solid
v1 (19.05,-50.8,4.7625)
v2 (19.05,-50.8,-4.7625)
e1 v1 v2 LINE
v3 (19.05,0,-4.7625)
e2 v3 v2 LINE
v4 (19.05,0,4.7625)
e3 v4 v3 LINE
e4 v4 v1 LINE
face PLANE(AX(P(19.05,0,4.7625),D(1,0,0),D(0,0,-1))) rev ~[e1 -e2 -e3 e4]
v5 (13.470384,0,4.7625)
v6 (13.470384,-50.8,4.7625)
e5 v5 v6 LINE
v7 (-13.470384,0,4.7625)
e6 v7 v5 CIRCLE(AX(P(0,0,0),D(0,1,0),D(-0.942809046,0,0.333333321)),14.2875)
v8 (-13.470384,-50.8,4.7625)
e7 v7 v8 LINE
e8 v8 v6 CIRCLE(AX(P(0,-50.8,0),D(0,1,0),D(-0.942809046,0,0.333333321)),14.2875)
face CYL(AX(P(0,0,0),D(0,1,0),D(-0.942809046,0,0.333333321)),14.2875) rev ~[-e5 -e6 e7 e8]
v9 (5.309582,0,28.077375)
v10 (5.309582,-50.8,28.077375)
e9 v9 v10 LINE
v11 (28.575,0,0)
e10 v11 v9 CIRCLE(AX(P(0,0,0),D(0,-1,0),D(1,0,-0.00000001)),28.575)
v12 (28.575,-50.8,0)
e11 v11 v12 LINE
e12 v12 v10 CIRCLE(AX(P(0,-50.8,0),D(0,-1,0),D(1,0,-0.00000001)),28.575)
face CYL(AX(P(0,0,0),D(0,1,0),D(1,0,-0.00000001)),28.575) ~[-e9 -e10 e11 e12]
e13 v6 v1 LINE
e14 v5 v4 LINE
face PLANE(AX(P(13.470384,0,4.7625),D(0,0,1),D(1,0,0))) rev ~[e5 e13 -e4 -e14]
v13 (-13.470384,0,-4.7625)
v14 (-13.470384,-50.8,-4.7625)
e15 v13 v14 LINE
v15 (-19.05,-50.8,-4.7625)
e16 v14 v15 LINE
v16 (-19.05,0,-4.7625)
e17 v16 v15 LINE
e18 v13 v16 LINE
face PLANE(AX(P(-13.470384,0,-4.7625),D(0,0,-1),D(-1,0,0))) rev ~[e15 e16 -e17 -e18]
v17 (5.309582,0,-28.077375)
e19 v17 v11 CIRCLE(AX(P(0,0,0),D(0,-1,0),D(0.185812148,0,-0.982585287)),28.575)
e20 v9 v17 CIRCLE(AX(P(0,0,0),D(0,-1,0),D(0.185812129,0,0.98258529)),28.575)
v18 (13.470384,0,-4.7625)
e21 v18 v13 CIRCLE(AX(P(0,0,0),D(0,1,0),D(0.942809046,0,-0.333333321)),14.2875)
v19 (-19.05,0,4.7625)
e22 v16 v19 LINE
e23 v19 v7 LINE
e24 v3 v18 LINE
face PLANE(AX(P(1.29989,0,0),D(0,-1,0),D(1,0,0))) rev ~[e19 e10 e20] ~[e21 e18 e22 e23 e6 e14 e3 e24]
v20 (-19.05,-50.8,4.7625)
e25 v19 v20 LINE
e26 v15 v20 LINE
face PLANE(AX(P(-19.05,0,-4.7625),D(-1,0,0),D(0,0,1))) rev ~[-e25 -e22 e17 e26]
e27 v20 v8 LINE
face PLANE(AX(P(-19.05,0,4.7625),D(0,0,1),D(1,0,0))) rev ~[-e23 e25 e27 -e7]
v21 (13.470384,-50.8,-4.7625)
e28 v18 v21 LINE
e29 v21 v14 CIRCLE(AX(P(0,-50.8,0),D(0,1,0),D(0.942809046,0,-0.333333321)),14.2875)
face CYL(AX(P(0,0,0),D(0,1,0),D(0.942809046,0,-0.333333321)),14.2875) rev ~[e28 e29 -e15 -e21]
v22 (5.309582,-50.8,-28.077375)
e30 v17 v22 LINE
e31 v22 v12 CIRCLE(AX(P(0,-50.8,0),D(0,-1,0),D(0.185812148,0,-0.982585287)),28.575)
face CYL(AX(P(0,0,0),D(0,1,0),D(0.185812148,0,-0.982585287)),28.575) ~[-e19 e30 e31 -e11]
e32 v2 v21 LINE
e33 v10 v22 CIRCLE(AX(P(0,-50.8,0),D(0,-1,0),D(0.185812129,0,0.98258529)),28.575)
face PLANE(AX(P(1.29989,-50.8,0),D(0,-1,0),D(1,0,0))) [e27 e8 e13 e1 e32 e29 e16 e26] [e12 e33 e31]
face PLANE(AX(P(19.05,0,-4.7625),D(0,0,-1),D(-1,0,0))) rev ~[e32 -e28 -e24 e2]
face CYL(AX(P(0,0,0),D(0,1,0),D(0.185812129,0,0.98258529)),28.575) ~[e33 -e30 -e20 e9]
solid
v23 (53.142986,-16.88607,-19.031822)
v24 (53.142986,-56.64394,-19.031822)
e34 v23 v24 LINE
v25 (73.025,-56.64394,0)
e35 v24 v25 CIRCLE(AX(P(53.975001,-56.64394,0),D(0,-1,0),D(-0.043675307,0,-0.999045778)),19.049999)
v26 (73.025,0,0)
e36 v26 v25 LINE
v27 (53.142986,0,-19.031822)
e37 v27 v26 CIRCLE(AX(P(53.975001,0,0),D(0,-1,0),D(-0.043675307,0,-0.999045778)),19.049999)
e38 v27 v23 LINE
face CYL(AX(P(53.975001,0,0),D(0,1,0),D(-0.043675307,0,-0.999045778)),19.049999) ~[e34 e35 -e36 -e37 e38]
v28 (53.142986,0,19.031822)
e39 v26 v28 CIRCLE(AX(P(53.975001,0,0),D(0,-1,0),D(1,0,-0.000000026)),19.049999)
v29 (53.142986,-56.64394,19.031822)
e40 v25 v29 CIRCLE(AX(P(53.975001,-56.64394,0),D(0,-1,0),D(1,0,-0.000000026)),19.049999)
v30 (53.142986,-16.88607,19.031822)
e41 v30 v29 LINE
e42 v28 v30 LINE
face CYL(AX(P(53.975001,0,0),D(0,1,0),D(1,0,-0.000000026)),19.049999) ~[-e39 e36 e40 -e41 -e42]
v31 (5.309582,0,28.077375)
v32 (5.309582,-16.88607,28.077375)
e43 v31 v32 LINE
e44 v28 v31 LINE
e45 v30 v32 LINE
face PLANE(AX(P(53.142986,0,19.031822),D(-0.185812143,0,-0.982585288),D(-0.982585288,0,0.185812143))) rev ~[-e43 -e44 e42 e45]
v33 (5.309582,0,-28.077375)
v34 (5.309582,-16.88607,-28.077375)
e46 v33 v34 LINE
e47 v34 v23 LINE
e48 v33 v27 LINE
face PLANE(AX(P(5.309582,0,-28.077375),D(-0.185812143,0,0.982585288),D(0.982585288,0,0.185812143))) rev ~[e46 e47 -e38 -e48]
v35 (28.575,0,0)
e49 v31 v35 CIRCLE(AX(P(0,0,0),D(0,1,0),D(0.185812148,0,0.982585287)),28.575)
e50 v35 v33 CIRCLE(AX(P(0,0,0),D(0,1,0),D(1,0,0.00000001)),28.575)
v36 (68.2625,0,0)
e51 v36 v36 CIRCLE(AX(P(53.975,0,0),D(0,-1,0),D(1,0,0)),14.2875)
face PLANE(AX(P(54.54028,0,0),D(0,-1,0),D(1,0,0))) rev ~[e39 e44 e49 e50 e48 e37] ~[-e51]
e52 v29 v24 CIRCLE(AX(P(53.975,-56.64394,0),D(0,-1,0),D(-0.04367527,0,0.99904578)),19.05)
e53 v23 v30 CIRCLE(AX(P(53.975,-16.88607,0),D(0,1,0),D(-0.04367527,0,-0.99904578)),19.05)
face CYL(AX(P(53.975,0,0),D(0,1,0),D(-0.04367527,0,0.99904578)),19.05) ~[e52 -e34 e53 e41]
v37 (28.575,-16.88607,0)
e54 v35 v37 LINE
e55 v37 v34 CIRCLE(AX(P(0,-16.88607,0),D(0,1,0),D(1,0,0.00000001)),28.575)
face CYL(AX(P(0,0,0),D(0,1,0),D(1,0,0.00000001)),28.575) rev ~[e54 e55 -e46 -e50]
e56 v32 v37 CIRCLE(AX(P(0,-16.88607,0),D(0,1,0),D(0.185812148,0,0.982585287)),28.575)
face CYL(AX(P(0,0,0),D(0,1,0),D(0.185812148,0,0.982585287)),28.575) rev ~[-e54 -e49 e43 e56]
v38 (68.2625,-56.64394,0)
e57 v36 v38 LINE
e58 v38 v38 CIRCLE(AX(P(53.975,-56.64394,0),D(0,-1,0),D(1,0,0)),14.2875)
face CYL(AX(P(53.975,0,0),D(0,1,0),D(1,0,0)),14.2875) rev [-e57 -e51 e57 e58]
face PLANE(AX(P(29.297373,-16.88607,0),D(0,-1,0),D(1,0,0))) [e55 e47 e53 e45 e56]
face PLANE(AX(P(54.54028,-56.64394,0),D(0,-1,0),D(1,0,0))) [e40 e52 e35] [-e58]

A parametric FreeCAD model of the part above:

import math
import FreeCAD as App
import Part
import Sketcher
Q = App.Units.Quantity

doc = App.newDocument("Part")
params = doc.addObject("Spreadsheet::Sheet", "Params")
for row, (alias, value) in enumerate([
    ("sketch1_radius", "1.125 in"),
    ("sketch1_radius2", "0.5625 in"),
    ("sketch1_height", "0.375 in"),
    ("pad1_length", "2 in"),
    ("sketch2_radius", "0.75 in"),
    ("sketch2_radius2", "1.125 in"),
    ("pad2_length", "16.88607 mm"),
    ("sketch3_radius", "0.75 in"),
    ("sketch3_diameter", "1.125 in"),
    ("pad3_length", "56.64394 mm"),
], start=1):
    params.set(f"A{row}", alias)
    params.set(f"B{row}", "=" + value)
    params.setAlias(f"B{row}", alias)

body = doc.addObject("PartDesign::Body", "Body")

# Sketch on XZ plane
sketch1 = body.newObject("Sketcher::SketchObject", "Sketch")
sketch1.AttachmentSupport = (doc.getObject("XZ_Plane"), [""])
sketch1.MapMode = "FlatFace"
sketch1.addGeometry(Part.ArcOfCircle(Part.Circle(App.Vector(0, 0, 0), App.Vector(0, 0, 1), 29), math.radians(-79), math.radians(0)), False)
sketch1.addGeometry(Part.ArcOfCircle(Part.Circle(App.Vector(0, 0, 0), App.Vector(0, 0, 1), 29), math.radians(0), math.radians(79)), False)
sketch1.addGeometry(Part.ArcOfCircle(Part.Circle(App.Vector(0, 0, 0), App.Vector(0, 0, 1), 29), math.radians(79), math.radians(281)), False)
sketch1.addGeometry(Part.LineSegment(App.Vector(-19, 5, 0), App.Vector(-13, 5, 0)), False)
sketch1.addGeometry(Part.ArcOfCircle(Part.Circle(App.Vector(0, 0, 0), App.Vector(0, 0, 1), 14), math.radians(19), math.radians(161)), False)
sketch1.addGeometry(Part.LineSegment(App.Vector(13, 5, 0), App.Vector(19, 5, 0)), False)
sketch1.addGeometry(Part.LineSegment(App.Vector(19, 5, 0), App.Vector(19, -5, 0)), False)
sketch1.addGeometry(Part.LineSegment(App.Vector(19, -5, 0), App.Vector(13, -5, 0)), False)
sketch1.addGeometry(Part.ArcOfCircle(Part.Circle(App.Vector(0, 0, 0), App.Vector(0, 0, 1), 14), math.radians(-161), math.radians(-19)), False)
sketch1.addGeometry(Part.LineSegment(App.Vector(-13, -5, 0), App.Vector(-19, -5, 0)), False)
sketch1.addGeometry(Part.LineSegment(App.Vector(-19, -5, 0), App.Vector(-19, 5, 0)), False)
sketch1.addConstraint(Sketcher.Constraint("Tangent", 0, 2, 1, 1))
sketch1.addConstraint(Sketcher.Constraint("Tangent", 1, 2, 2, 1))
sketch1.addConstraint(Sketcher.Constraint("Tangent", 2, 2, 0, 1))
sketch1.addConstraint(Sketcher.Constraint("Coincident", 3, 2, 4, 2))
sketch1.addConstraint(Sketcher.Constraint("Coincident", 4, 1, 5, 1))
sketch1.addConstraint(Sketcher.Constraint("Coincident", 5, 2, 6, 1))
sketch1.addConstraint(Sketcher.Constraint("Coincident", 6, 2, 7, 1))
sketch1.addConstraint(Sketcher.Constraint("Coincident", 7, 2, 8, 2))
sketch1.addConstraint(Sketcher.Constraint("Coincident", 8, 1, 9, 1))
sketch1.addConstraint(Sketcher.Constraint("Coincident", 9, 2, 10, 1))
sketch1.addConstraint(Sketcher.Constraint("Coincident", 10, 2, 3, 1))
sketch1.addConstraint(Sketcher.Constraint("Horizontal", 3))
sketch1.addConstraint(Sketcher.Constraint("Horizontal", 5))
sketch1.addConstraint(Sketcher.Constraint("Vertical", 6))
sketch1.addConstraint(Sketcher.Constraint("Horizontal", 7))
sketch1.addConstraint(Sketcher.Constraint("Horizontal", 9))
sketch1.addConstraint(Sketcher.Constraint("Vertical", 10))
sketch1.addConstraint(Sketcher.Constraint("Coincident", 0, 3, -1, 1))
sketch1.addConstraint(Sketcher.Constraint("Coincident", 4, 3, -1, 1))
sketch1.addConstraint(Sketcher.Constraint("Coincident", 8, 3, -1, 1))
sketch1.addConstraint(Sketcher.Constraint("Equal", 4, 8))
sketch1.addConstraint(Sketcher.Constraint("Symmetric", 5, 2, 9, 2, -1, 1))
sketch1.addConstraint(Sketcher.Constraint("PointOnObject", 0, 2, -1))
sketch1.addConstraint(Sketcher.Constraint("Horizontal", 3, 2, 4, 1))
sketch1.addConstraint(Sketcher.Constraint("Horizontal", 7, 2, 8, 1))
sketch1.addConstraint(Sketcher.Constraint("Vertical", 1, 2, 2, 2))
sketch1.addConstraint(Sketcher.Constraint("Radius", 0, Q("1.125 in")))
sketch1.addConstraint(Sketcher.Constraint("Radius", 4, Q("0.5625 in")))
sketch1.addConstraint(Sketcher.Constraint("DistanceY", 6, 2, 6, 1, Q("0.375 in")))
sketch1.addConstraint(Sketcher.Constraint("DistanceX", -1, 1, 5, 2, Q("0.75 in")))
sketch1.addConstraint(Sketcher.Constraint("DistanceX", -1, 1, 1, 2, Q("5.309582 mm")))
sketch1.setExpression("Constraints[26]", "Params.sketch1_radius")
sketch1.setExpression("Constraints[27]", "Params.sketch1_radius2")
sketch1.setExpression("Constraints[28]", "Params.sketch1_height")
pad1 = body.newObject("PartDesign::Pad", "Pad")
pad1.Profile = sketch1
pad1.setExpression("Length", "Params.pad1_length")
body2 = doc.addObject("PartDesign::Body", "Body001")

# Sketch on XZ plane
sketch2 = body2.newObject("Sketcher::SketchObject", "Sketch001")
sketch2.AttachmentSupport = (doc.getObject("XZ_Plane001"), [""])
sketch2.MapMode = "FlatFace"
sketch2.addGeometry(Part.ArcOfCircle(Part.Circle(App.Vector(0, 0, 0), App.Vector(0, 0, 1), 29), math.radians(0), math.radians(79)), False)
sketch2.addGeometry(Part.ArcOfCircle(Part.Circle(App.Vector(0, 0, 0), App.Vector(0, 0, 1), 29), math.radians(-79), math.radians(0)), False)
sketch2.addGeometry(Part.LineSegment(App.Vector(5, -28, 0), App.Vector(53, -19, 0)), False)
sketch2.addGeometry(Part.ArcOfCircle(Part.Circle(App.Vector(54, 0, 0), App.Vector(0, 0, 1), 19), math.radians(93), math.radians(267)), False)
sketch2.addGeometry(Part.LineSegment(App.Vector(53, 19, 0), App.Vector(5, 28, 0)), False)
sketch2.addConstraint(Sketcher.Constraint("Tangent", 0, 1, 1, 2))
sketch2.addConstraint(Sketcher.Constraint("Tangent", 1, 1, 2, 1))
sketch2.addConstraint(Sketcher.Constraint("Coincident", 2, 2, 3, 2))
sketch2.addConstraint(Sketcher.Constraint("Coincident", 3, 1, 4, 1))
sketch2.addConstraint(Sketcher.Constraint("Tangent", 4, 2, 0, 2))
sketch2.addConstraint(Sketcher.Constraint("Coincident", 0, 3, -1, 1))
sketch2.addConstraint(Sketcher.Constraint("Equal", 0, 1))
sketch2.addConstraint(Sketcher.Constraint("Symmetric", 2, 2, 3, 1, -1))
sketch2.addConstraint(Sketcher.Constraint("PointOnObject", 0, 1, -1))
sketch2.addConstraint(Sketcher.Constraint("Radius", 3, Q("0.75 in")))
sketch2.addConstraint(Sketcher.Constraint("Radius", 0, Q("1.125 in")))
sketch2.addConstraint(Sketcher.Constraint("DistanceX", 0, 1, 3, 3, Q("1 in")))
sketch2.addConstraint(Sketcher.Constraint("DistanceX", -1, 1, 1, 1, Q("5.309582 mm")))
sketch2.setExpression("Constraints[9]", "Params.sketch2_radius")
sketch2.setExpression("Constraints[10]", "Params.sketch2_radius2")
pad2 = body2.newObject("PartDesign::Pad", "Pad001")
pad2.Profile = sketch2
pad2.setExpression("Length", "Params.pad2_length")

# Sketch on XZ plane
sketch3 = body2.newObject("Sketcher::SketchObject", "Sketch002")
sketch3.AttachmentSupport = (doc.getObject("XZ_Plane001"), [""])
sketch3.MapMode = "FlatFace"
sketch3.addGeometry(Part.ArcOfCircle(Part.Circle(App.Vector(54, 0, 0), App.Vector(0, 0, 1), 19), math.radians(0), math.radians(93)), False)
sketch3.addGeometry(Part.ArcOfCircle(Part.Circle(App.Vector(54, 0, 0), App.Vector(0, 0, 1), 19), math.radians(93), math.radians(267)), False)
sketch3.addGeometry(Part.ArcOfCircle(Part.Circle(App.Vector(54, 0, 0), App.Vector(0, 0, 1), 19), math.radians(-93), math.radians(0)), False)
sketch3.addGeometry(Part.Circle(App.Vector(54, 0, 0), App.Vector(0, 0, 1), 14), False)
sketch3.addConstraint(Sketcher.Constraint("Tangent", 0, 2, 1, 1))
sketch3.addConstraint(Sketcher.Constraint("Tangent", 1, 2, 2, 1))
sketch3.addConstraint(Sketcher.Constraint("Tangent", 2, 2, 0, 1))
sketch3.addConstraint(Sketcher.Constraint("Coincident", 3, 3, 0, 3))
sketch3.addConstraint(Sketcher.Constraint("Symmetric", 0, 2, 1, 2, -1))
sketch3.addConstraint(Sketcher.Constraint("PointOnObject", 2, 2, -1))
sketch3.addConstraint(Sketcher.Constraint("Radius", 0, Q("0.75 in")))
sketch3.addConstraint(Sketcher.Constraint("Diameter", 3, Q("1.125 in")))
sketch3.addConstraint(Sketcher.Constraint("DistanceX", -1, 1, 0, 3, Q("2.125 in")))
sketch3.addConstraint(Sketcher.Constraint("DistanceY", -1, 1, 0, 2, Q("19.031822 mm")))
sketch3.setExpression("Constraints[6]", "Params.sketch3_radius")
sketch3.setExpression("Constraints[7]", "Params.sketch3_diameter")
pad3 = body2.newObject("PartDesign::Pad", "Pad002")
pad3.Profile = sketch3
pad3.setExpression("Length", "Params.pad3_length")

doc.recompute()
